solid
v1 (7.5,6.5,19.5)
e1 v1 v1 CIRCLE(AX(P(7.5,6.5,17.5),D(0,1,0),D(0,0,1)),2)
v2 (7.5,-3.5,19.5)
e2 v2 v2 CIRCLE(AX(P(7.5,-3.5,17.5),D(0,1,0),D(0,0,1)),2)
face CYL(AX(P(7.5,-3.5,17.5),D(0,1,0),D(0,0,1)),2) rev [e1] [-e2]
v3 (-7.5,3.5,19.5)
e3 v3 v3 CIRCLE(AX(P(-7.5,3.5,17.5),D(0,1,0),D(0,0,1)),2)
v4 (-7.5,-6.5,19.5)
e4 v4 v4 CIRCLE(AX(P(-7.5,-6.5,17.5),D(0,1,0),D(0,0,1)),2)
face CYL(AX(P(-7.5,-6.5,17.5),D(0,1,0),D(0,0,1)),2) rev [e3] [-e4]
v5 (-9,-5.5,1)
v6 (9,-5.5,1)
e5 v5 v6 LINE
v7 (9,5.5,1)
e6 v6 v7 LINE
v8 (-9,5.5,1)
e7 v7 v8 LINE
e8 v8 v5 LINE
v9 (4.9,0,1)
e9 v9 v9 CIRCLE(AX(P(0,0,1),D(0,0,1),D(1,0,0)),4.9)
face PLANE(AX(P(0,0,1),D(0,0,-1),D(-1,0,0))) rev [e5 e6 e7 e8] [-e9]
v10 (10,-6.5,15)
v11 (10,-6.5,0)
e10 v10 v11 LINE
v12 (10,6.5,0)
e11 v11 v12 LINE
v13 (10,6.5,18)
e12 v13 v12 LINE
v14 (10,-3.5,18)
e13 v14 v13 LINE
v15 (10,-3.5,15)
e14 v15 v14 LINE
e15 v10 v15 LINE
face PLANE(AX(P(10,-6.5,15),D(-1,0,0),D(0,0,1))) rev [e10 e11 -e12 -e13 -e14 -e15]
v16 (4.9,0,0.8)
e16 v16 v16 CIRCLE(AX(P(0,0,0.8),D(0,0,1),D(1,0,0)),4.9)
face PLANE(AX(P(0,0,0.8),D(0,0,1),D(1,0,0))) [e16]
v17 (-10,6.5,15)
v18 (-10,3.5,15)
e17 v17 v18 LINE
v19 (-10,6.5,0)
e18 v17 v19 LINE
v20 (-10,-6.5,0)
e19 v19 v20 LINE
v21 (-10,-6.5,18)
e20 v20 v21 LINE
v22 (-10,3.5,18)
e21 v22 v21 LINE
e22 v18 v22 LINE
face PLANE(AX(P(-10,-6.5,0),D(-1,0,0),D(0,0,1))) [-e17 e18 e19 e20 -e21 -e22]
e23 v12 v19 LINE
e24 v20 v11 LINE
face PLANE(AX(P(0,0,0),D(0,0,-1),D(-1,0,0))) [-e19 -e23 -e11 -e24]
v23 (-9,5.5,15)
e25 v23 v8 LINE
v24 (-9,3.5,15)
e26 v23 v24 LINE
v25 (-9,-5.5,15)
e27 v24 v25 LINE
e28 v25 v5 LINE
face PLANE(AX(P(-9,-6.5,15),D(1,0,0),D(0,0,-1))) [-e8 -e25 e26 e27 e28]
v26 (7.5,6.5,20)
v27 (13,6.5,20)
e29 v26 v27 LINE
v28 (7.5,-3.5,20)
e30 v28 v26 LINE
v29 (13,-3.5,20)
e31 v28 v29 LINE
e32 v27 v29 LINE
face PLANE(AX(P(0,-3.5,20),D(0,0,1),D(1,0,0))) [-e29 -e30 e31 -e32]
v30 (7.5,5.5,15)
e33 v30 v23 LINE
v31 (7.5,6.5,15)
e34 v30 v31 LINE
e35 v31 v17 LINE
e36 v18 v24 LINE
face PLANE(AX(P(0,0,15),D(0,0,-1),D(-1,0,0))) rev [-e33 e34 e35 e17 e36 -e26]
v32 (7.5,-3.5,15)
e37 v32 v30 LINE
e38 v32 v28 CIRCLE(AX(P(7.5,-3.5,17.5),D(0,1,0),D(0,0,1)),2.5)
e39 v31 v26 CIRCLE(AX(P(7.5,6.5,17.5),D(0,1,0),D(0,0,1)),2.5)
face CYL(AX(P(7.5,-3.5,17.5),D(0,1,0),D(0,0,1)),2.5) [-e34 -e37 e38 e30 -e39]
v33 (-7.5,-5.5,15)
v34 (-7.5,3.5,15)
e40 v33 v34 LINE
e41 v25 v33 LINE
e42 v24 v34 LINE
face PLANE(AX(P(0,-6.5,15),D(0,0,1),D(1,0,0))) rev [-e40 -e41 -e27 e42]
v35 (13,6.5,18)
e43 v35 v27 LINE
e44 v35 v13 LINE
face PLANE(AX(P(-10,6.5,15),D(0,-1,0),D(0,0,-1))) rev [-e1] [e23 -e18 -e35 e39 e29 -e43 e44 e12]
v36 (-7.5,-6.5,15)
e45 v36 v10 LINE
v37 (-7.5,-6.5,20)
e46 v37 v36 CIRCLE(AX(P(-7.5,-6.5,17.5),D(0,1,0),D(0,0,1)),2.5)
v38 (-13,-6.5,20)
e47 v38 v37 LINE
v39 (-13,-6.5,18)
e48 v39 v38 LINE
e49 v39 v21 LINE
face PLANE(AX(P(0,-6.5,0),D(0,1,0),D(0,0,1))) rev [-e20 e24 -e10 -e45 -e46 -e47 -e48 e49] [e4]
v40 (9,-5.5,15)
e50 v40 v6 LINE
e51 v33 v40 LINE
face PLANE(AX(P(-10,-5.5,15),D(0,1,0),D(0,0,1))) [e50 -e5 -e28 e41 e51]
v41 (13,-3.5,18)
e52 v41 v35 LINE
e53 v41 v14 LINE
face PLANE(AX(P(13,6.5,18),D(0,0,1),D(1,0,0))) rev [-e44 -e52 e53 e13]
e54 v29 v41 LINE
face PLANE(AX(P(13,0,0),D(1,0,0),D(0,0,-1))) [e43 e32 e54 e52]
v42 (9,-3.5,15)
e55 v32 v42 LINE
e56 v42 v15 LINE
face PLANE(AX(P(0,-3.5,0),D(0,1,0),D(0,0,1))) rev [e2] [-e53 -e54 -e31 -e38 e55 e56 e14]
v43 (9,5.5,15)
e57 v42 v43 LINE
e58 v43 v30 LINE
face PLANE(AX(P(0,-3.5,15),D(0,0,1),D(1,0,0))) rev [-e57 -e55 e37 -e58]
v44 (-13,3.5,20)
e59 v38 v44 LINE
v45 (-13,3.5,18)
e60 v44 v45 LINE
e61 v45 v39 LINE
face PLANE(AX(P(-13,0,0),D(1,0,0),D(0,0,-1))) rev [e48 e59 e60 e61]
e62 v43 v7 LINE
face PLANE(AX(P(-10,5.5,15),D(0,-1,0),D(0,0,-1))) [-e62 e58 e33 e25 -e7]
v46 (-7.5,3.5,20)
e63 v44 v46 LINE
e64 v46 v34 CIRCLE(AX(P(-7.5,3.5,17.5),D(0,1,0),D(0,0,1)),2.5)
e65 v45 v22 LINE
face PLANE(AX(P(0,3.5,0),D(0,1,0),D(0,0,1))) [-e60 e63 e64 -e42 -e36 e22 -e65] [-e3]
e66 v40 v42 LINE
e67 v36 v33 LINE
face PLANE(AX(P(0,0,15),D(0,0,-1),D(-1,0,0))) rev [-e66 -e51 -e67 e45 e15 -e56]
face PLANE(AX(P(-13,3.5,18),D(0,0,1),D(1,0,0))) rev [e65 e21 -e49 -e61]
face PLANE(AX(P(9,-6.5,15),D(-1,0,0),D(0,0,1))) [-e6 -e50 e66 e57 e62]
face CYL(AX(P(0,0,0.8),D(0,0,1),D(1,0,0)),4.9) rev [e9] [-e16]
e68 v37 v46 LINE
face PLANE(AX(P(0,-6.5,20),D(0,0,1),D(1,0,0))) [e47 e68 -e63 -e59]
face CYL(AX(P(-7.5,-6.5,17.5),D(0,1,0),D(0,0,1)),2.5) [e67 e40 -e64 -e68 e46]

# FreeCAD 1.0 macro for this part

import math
import FreeCAD as App
import Part
import Sketcher

V = App.Vector


def faces_at(feature, points):
    """Names of the faces that lie closest to the given points."""
    faces = feature.Shape.Faces
    near = lambda p: min(range(len(faces)), key=lambda i: faces[i].distToShape(Part.Vertex(*p))[0])
    return sorted({f"Face{near(p) + 1}" for p in points})

doc = App.newDocument("Part")
body = doc.addObject("PartDesign::Body", "Body")

# Sketch on XY plane
sketch1 = body.newObject("Sketcher::SketchObject", "Sketch")
sketch1.AttachmentSupport = (doc.getObject("XY_Plane"), [""])
sketch1.MapMode = "FlatFace"
sketch1.addGeometry([
    Part.LineSegment(V(-10, 6, 0), V(-10, -6, 0)),
    Part.LineSegment(V(-10, -6, 0), V(10, -6, 0)),
    Part.LineSegment(V(10, -6, 0), V(10, 6, 0)),
    Part.LineSegment(V(10, 6, 0), V(-10, 6, 0)),
], False)
sketch1.addConstraint([
    Sketcher.Constraint("Coincident", 0, 2, 1, 1),
    Sketcher.Constraint("Coincident", 1, 2, 2, 1),
    Sketcher.Constraint("Coincident", 2, 2, 3, 1),
    Sketcher.Constraint("Coincident", 3, 2, 0, 1),
    Sketcher.Constraint("Vertical", 0),
    Sketcher.Constraint("Horizontal", 1),
    Sketcher.Constraint("Vertical", 2),
    Sketcher.Constraint("Horizontal", 3),
    Sketcher.Constraint("Symmetric", 0, 2, 2, 2, -1, 1),
    Sketcher.Constraint("DistanceX", 1, 1, 1, 2, 20.0),
    Sketcher.Constraint("DistanceY", 0, 2, 0, 1, 13.0),
])
pad1 = body.newObject("PartDesign::Pad", "Pad")
pad1.Profile = sketch1
pad1.Length = 15
doc.recompute()

thickness = body.newObject("PartDesign::Thickness", "Thickness")
thickness.Base = (pad1, faces_at(pad1, [(0, 0, 15)]))
thickness.Value = 1
thickness.Reversed = True
thickness.Join = "Intersection"

# Sketch on XY plane
sketch2 = body.newObject("Sketcher::SketchObject", "Sketch001")
sketch2.AttachmentSupport = (doc.getObject("XY_Plane"), [""])
sketch2.MapMode = "FlatFace"
sketch2.AttachmentOffset = App.Placement(V(0, 0, 1), App.Rotation())
sketch2.addGeometry(Part.Circle(V(0, 0, 0), V(0, 0, 1), 4.9), False)
sketch2.addConstraint([
    Sketcher.Constraint("Coincident", 0, 3, -1, 1),
    Sketcher.Constraint("Diameter", 0, 9.8),
])
pocket1 = body.newObject("PartDesign::Pocket", "Pocket")
pocket1.Profile = sketch2
pocket1.Length = 0.2

# Sketch on XZ plane
sketch3 = body.newObject("Sketcher::SketchObject", "Sketch002")
sketch3.AttachmentSupport = (doc.getObject("XZ_Plane"), [""])
sketch3.MapMode = "FlatFace"
sketch3.AttachmentOffset = App.Placement(V(0, 0, -6.5), App.Rotation())
sketch3.addGeometry([
    Part.LineSegment(V(10, 15, 0), V(7.5, 15, 0)),  # 0
    Part.ArcOfCircle(Part.Circle(V(7.5, 17.5, 0), V(0, 0, 1), 2.5), math.radians(90), math.radians(270)),  # 1
    Part.LineSegment(V(7.5, 20, 0), V(10, 20, 0)),  # 2
    Part.LineSegment(V(10, 20, 0), V(10, 15, 0)),  # 3
    Part.Circle(V(7.5, 17.5, 0), V(0, 0, 1), 2),  # 4
], False)
sketch3.addConstraint([
    Sketcher.Constraint("Tangent", 0, 2, 1, 2),
    Sketcher.Constraint("Tangent", 1, 1, 2, 1),
    Sketcher.Constraint("Coincident", 2, 2, 3, 1),
    Sketcher.Constraint("Coincident", 3, 2, 0, 1),
    Sketcher.Constraint("Horizontal", 0),
    Sketcher.Constraint("Horizontal", 2),
    Sketcher.Constraint("Vertical", 3),
    Sketcher.Constraint("Coincident", 4, 3, 1, 3),
    Sketcher.Constraint("Diameter", 4, 4.0),
    Sketcher.Constraint("Radius", 1, 2.5),
    Sketcher.Constraint("DistanceX", 0, 2, 0, 1, 2.5),
    Sketcher.Constraint("DistanceY", -1, 1, 0, 2, 15.0),
    Sketcher.Constraint("DistanceX", -1, 1, 2, 2, 10.0),
])
pad2 = body.newObject("PartDesign::Pad", "Pad001")
pad2.Profile = sketch3
pad2.Length = 10
body2 = doc.addObject("PartDesign::Body", "Body001")

# Sketch on XZ plane
sketch4 = body2.newObject("Sketcher::SketchObject", "Sketch003")
sketch4.AttachmentSupport = (doc.getObject("XZ_Plane001"), [""])
sketch4.MapMode = "FlatFace"
sketch4.AttachmentOffset = App.Placement(V(0, 0, -3.5), App.Rotation())
sketch4.addGeometry([
    Part.LineSegment(V(-10, 20, 0), V(-7.5, 20, 0)),  # 0
    Part.ArcOfCircle(Part.Circle(V(-7.5, 17.5, 0), V(0, 0, 1), 2.5), math.radians(-90), math.radians(90)),  # 1
    Part.LineSegment(V(-7.5, 15, 0), V(-10, 15, 0)),  # 2
    Part.LineSegment(V(-10, 15, 0), V(-10, 20, 0)),  # 3
    Part.Circle(V(-7.5, 17.5, 0), V(0, 0, 1), 2),  # 4
], False)
sketch4.addConstraint([
    Sketcher.Constraint("Tangent", 0, 2, 1, 2),
    Sketcher.Constraint("Tangent", 1, 1, 2, 1),
    Sketcher.Constraint("Coincident", 2, 2, 3, 1),
    Sketcher.Constraint("Coincident", 3, 2, 0, 1),
    Sketcher.Constraint("Horizontal", 0),
    Sketcher.Constraint("Horizontal", 2),
    Sketcher.Constraint("Vertical", 3),
    Sketcher.Constraint("Coincident", 4, 3, 1, 3),
    Sketcher.Constraint("Diameter", 4, 4.0),
    Sketcher.Constraint("Radius", 1, 2.5),
    Sketcher.Constraint("DistanceX", 0, 1, 0, 2, 2.5),
    Sketcher.Constraint("DistanceY", -1, 1, 0, 2, 20.0),
    Sketcher.Constraint("DistanceX", 2, 2, -1, 1, 10.0),
])
pad3 = body2.newObject("PartDesign::Pad", "Pad002")
pad3.Profile = sketch4
pad3.Length = 10
doc.recompute()

boolean = body2.newObject("PartDesign::Boolean", "Boolean")
boolean.Type = "Fuse"
boolean.addObjects([body])

# Sketch on YZ plane
sketch5 = body2.newObject("Sketcher::SketchObject", "Sketch004")
sketch5.AttachmentSupport = (doc.getObject("YZ_Plane001"), [""])
sketch5.MapMode = "FlatFace"
sketch5.AttachmentOffset = App.Placement(V(0, 0, -10), App.Rotation())
sketch5.addGeometry([
    Part.LineSegment(V(3.5, 18, 0), V(-6.5, 18, 0)),
    Part.LineSegment(V(-6.5, 18, 0), V(-6.5, 20, 0)),
    Part.LineSegment(V(-6.5, 20, 0), V(3.5, 20, 0)),
    Part.LineSegment(V(3.5, 20, 0), V(3.5, 18, 0)),
], False)
sketch5.addConstraint([
    Sketcher.Constraint("Coincident", 0, 2, 1, 1),
    Sketcher.Constraint("Coincident", 1, 2, 2, 1),
    Sketcher.Constraint("Coincident", 2, 2, 3, 1),
    Sketcher.Constraint("Coincident", 3, 2, 0, 1),
    Sketcher.Constraint("Horizontal", 0),
    Sketcher.Constraint("Vertical", 1),
    Sketcher.Constraint("Horizontal", 2),
    Sketcher.Constraint("Vertical", 3),
    Sketcher.Constraint("DistanceX", 0, 2, 0, 1, 10.0),
    Sketcher.Constraint("DistanceY", 1, 1, 1, 2, 2.0),
    Sketcher.Constraint("DistanceY", -1, 1, 0, 2, 18.0),
    Sketcher.Constraint("DistanceX", 0, 2, -1, 1, 6.5),
])
pad4 = body2.newObject("PartDesign::Pad", "Pad003")
pad4.Profile = sketch5
pad4.Length = 3
pad4.Reversed = True

# Sketch on YZ plane
sketch6 = body2.newObject("Sketcher::SketchObject", "Sketch005")
sketch6.AttachmentSupport = (doc.getObject("YZ_Plane001"), [""])
sketch6.MapMode = "FlatFace"
sketch6.AttachmentOffset = App.Placement(V(0, 0, 10), App.Rotation())
sketch6.addGeometry([
    Part.LineSegment(V(6.5, 20, 0), V(-3.5, 20, 0)),
    Part.LineSegment(V(-3.5, 20, 0), V(-3.5, 18, 0)),
    Part.LineSegment(V(-3.5, 18, 0), V(6.5, 18, 0)),
    Part.LineSegment(V(6.5, 18, 0), V(6.5, 20, 0)),
], False)
sketch6.addConstraint([
    Sketcher.Constraint("Coincident", 0, 2, 1, 1),
    Sketcher.Constraint("Coincident", 1, 2, 2, 1),
    Sketcher.Constraint("Coincident", 2, 2, 3, 1),
    Sketcher.Constraint("Coincident", 3, 2, 0, 1),
    Sketcher.Constraint("Horizontal", 0),
    Sketcher.Constraint("Vertical", 1),
    Sketcher.Constraint("Horizontal", 2),
    Sketcher.Constraint("Vertical", 3),
    Sketcher.Constraint("DistanceX", 0, 2, 0, 1, 10.0),
    Sketcher.Constraint("DistanceY", 1, 2, 1, 1, 2.0),
    Sketcher.Constraint("DistanceY", -1, 1, 0, 2, 20.0),
    Sketcher.Constraint("DistanceX", 0, 2, -1, 1, 3.5),
])
pad5 = body2.newObject("PartDesign::Pad", "Pad004")
pad5.Profile = sketch6
pad5.Length = 3

doc.recompute()
